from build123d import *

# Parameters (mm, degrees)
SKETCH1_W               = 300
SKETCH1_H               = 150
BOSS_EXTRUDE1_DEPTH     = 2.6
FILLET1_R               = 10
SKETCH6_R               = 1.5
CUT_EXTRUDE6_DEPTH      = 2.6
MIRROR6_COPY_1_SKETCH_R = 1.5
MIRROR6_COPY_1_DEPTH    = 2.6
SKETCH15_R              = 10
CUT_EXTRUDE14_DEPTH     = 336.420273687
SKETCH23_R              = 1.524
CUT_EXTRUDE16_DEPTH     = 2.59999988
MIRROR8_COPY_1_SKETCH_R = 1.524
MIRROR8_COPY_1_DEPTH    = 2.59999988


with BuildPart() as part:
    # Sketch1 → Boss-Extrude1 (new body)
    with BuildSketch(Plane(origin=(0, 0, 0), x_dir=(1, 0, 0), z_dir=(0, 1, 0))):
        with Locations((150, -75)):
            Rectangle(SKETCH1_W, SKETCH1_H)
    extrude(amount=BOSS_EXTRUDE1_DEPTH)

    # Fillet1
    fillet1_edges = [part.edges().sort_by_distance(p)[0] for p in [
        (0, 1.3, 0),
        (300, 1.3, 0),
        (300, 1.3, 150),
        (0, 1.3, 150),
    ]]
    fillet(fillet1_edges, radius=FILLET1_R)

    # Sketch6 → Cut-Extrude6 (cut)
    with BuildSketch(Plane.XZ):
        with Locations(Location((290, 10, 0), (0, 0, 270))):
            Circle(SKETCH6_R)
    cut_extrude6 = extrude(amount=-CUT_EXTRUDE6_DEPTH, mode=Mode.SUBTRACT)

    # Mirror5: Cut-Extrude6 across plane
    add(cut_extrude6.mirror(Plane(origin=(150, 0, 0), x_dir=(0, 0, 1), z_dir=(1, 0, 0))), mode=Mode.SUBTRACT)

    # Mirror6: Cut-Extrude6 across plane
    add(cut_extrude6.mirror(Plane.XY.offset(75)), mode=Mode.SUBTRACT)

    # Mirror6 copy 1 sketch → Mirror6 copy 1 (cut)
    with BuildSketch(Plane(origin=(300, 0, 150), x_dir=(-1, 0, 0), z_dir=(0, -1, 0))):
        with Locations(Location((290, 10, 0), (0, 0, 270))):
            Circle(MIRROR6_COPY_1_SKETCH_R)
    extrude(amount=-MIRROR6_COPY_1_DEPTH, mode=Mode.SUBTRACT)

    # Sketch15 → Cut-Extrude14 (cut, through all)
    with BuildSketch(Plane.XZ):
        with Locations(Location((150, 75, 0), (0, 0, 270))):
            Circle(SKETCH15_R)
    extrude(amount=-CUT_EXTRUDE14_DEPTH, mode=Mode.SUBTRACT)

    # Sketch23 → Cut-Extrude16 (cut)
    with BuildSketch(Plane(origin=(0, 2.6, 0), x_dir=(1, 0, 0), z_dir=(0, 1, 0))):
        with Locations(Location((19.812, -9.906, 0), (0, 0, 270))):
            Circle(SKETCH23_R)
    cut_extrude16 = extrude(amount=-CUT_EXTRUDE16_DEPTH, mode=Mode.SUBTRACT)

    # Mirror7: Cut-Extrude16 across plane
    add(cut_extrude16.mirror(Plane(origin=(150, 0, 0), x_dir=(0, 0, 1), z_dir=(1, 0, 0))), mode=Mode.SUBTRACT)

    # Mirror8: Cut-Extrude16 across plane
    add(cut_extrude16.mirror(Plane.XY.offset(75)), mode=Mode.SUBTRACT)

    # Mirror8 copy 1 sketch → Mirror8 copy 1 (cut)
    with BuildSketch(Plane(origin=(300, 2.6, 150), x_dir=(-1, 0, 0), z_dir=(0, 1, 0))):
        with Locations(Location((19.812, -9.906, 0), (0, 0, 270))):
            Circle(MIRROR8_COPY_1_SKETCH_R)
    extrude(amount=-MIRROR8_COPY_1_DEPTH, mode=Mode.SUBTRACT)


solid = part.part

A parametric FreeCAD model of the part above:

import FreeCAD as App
import Part
import Sketcher
Q = App.Units.Quantity


def edges_at(feature, points):
    """Names of the edges that pass closest to the given points."""
    edges = feature.Shape.Edges
    near = lambda p: min(range(len(edges)), key=lambda i: edges[i].distToShape(Part.Vertex(*p))[0])
    return sorted({f"Edge{near(p) + 1}" for p in points})

doc = App.newDocument("Part")
body = doc.addObject("PartDesign::Body", "Body")

sketch1 = doc.addObject("Sketcher::SketchObject", "Sketch")
body.addObject(sketch1)
sketch1.AttachmentSupport = (doc.XZ_Plane, [""])
sketch1.MapMode = "FlatFace"
sketch1.addGeometry([
    Part.LineSegment(App.Vector(0, 0, 0), App.Vector(0, 150, 0)),
    Part.LineSegment(App.Vector(0, 150, 0), App.Vector(300, 150, 0)),
    Part.LineSegment(App.Vector(300, 150, 0), App.Vector(300, 0, 0)),
    Part.LineSegment(App.Vector(300, 0, 0), App.Vector(0, 0, 0)),
], False)
sketch1.addConstraint([
    Sketcher.Constraint("Coincident", 0, 2, 1, 1),
    Sketcher.Constraint("Coincident", 1, 2, 2, 1),
    Sketcher.Constraint("Coincident", 2, 2, 3, 1),
    Sketcher.Constraint("Coincident", 3, 2, 0, 1),
    Sketcher.Constraint("Vertical", 0),
    Sketcher.Constraint("Horizontal", 1),
    Sketcher.Constraint("Vertical", 2),
    Sketcher.Constraint("Horizontal", 3),
    Sketcher.Constraint("Coincident", 3, 2, -1, 1),
    Sketcher.Constraint("DistanceX", 1, 1, 1, 2, Q("300 mm")),
    Sketcher.Constraint("DistanceY", 0, 1, 0, 2, Q("150 mm")),
])
pad1 = doc.addObject("PartDesign::Pad", "Pad")
body.addObject(pad1)
pad1.Profile = sketch1
pad1.Length = 2.6
pad1.Reversed = True
doc.recompute()

fillet = doc.addObject("PartDesign::Fillet", "Fillet")
body.addObject(fillet)
fillet.Base = (pad1, edges_at(pad1, [
    (0, 1.3, 0),
    (300, 1.3, 0),
    (300, 1.3, 150),
    (0, 1.3, 150),
]))
fillet.Radius = 10

sketch2 = doc.addObject("Sketcher::SketchObject", "Sketch001")
body.addObject(sketch2)
sketch2.AttachmentSupport = (doc.XZ_Plane, [""])
sketch2.MapMode = "FlatFace"
sketch2.addGeometry(Part.Circle(App.Vector(290, 10, 0), App.Vector(0, 0, 1), 1.5), False)
sketch2.addConstraint([
    Sketcher.Constraint("Diameter", 0, Q("3 mm")),
    Sketcher.Constraint("DistanceX", -1, 1, 0, 3, Q("290 mm")),
    Sketcher.Constraint("DistanceY", -1, 1, 0, 3, Q("10 mm")),
])
pocket1 = doc.addObject("PartDesign::Pocket", "Pocket")
body.addObject(pocket1)
pocket1.Profile = sketch2
pocket1.Length = 2.6
doc.recompute()

datumplane = doc.addObject("PartDesign::Plane", "DatumPlane")
body.addObject(datumplane)
datumplane.AttachmentSupport = (doc.YZ_Plane, [""])
datumplane.MapMode = "FlatFace"
datumplane.AttachmentOffset = App.Placement(App.Vector(0, 0, 150), App.Rotation())
mirrored = doc.addObject("PartDesign::Mirrored", "Mirrored")
body.addObject(mirrored)
mirrored.Originals = [pocket1]
mirrored.MirrorPlane = (datumplane, [""])
body.Tip = mirrored
doc.recompute()

datumplane2 = doc.addObject("PartDesign::Plane", "DatumPlane001")
body.addObject(datumplane2)
datumplane2.AttachmentSupport = (doc.XY_Plane, [""])
datumplane2.MapMode = "FlatFace"
datumplane2.AttachmentOffset = App.Placement(App.Vector(0, 0, 75), App.Rotation())
mirrored2 = doc.addObject("PartDesign::Mirrored", "Mirrored001")
body.addObject(mirrored2)
mirrored2.Originals = [pocket1]
mirrored2.MirrorPlane = (datumplane2, [""])
body.Tip = mirrored2

sketch3 = doc.addObject("Sketcher::SketchObject", "Sketch002")
body.addObject(sketch3)
sketch3.AttachmentSupport = (doc.XZ_Plane, [""])
sketch3.MapMode = "FlatFace"
sketch3.addGeometry(Part.Circle(App.Vector(10, 140, 0), App.Vector(0, 0, 1), 1.5), False)
sketch3.addConstraint([
    Sketcher.Constraint("Diameter", 0, Q("3 mm")),
    Sketcher.Constraint("DistanceX", -1, 1, 0, 3, Q("10 mm")),
    Sketcher.Constraint("DistanceY", -1, 1, 0, 3, Q("140 mm")),
])
pocket2 = doc.addObject("PartDesign::Pocket", "Pocket001")
body.addObject(pocket2)
pocket2.Profile = sketch3
pocket2.Length = 2.6

sketch4 = doc.addObject("Sketcher::SketchObject", "Sketch003")
body.addObject(sketch4)
sketch4.AttachmentSupport = (doc.XZ_Plane, [""])
sketch4.MapMode = "FlatFace"
sketch4.addGeometry(Part.Circle(App.Vector(150, 75, 0), App.Vector(0, 0, 1), 10), False)
sketch4.addConstraint([
    Sketcher.Constraint("Diameter", 0, Q("20 mm")),
    Sketcher.Constraint("DistanceX", -1, 1, 0, 3, Q("150 mm")),
    Sketcher.Constraint("DistanceY", -1, 1, 0, 3, Q("75 mm")),
])
pocket3 = doc.addObject("PartDesign::Pocket", "Pocket002")
body.addObject(pocket3)
pocket3.Profile = sketch4
pocket3.Type = "ThroughAll"

sketch5 = doc.addObject("Sketcher::SketchObject", "Sketch004")
body.addObject(sketch5)
sketch5.AttachmentSupport = (doc.XZ_Plane, [""])
sketch5.MapMode = "FlatFace"
sketch5.AttachmentOffset = App.Placement(App.Vector(0, 0, -2.6), App.Rotation())
sketch5.addGeometry(Part.Circle(App.Vector(19.8, 9.9, 0), App.Vector(0, 0, 1), 1.5), False)
sketch5.addConstraint([
    Sketcher.Constraint("Diameter", 0, Q("3.048 mm")),
    Sketcher.Constraint("DistanceX", -1, 1, 0, 3, Q("19.812 mm")),
    Sketcher.Constraint("DistanceY", -1, 1, 0, 3, Q("9.906 mm")),
])
pocket4 = doc.addObject("PartDesign::Pocket", "Pocket003")
body.addObject(pocket4)
pocket4.Profile = sketch5
pocket4.Length = 2.6
pocket4.Reversed = True
doc.recompute()

datumplane3 = doc.addObject("PartDesign::Plane", "DatumPlane002")
body.addObject(datumplane3)
datumplane3.AttachmentSupport = (doc.YZ_Plane, [""])
datumplane3.MapMode = "FlatFace"
datumplane3.AttachmentOffset = App.Placement(App.Vector(0, 0, 150), App.Rotation())
mirrored3 = doc.addObject("PartDesign::Mirrored", "Mirrored002")
body.addObject(mirrored3)
mirrored3.Originals = [pocket4]
mirrored3.MirrorPlane = (datumplane3, [""])
body.Tip = mirrored3
doc.recompute()

datumplane4 = doc.addObject("PartDesign::Plane", "DatumPlane003")
body.addObject(datumplane4)
datumplane4.AttachmentSupport = (doc.XY_Plane, [""])
datumplane4.MapMode = "FlatFace"
datumplane4.AttachmentOffset = App.Placement(App.Vector(0, 0, 75), App.Rotation())
mirrored4 = doc.addObject("PartDesign::Mirrored", "Mirrored003")
body.addObject(mirrored4)
mirrored4.Originals = [pocket4]
mirrored4.MirrorPlane = (datumplane4, [""])
body.Tip = mirrored4

sketch6 = doc.addObject("Sketcher::SketchObject", "Sketch005")
body.addObject(sketch6)
sketch6.AttachmentSupport = (doc.XZ_Plane, [""])
sketch6.MapMode = "FlatFace"
sketch6.AttachmentOffset = App.Placement(App.Vector(0, 0, -2.6), App.Rotation())
sketch6.addGeometry(Part.Circle(App.Vector(280.2, 140.1, 0), App.Vector(0, 0, 1), 1.5), False)
sketch6.addConstraint([
    Sketcher.Constraint("Diameter", 0, Q("3.048 mm")),
    Sketcher.Constraint("DistanceX", -1, 1, 0, 3, Q("280.188 mm")),
    Sketcher.Constraint("DistanceY", -1, 1, 0, 3, Q("140.094 mm")),
])
pocket5 = doc.addObject("PartDesign::Pocket", "Pocket004")
body.addObject(pocket5)
pocket5.Profile = sketch6
pocket5.Length = 2.6
pocket5.Reversed = True

doc.recompute()
